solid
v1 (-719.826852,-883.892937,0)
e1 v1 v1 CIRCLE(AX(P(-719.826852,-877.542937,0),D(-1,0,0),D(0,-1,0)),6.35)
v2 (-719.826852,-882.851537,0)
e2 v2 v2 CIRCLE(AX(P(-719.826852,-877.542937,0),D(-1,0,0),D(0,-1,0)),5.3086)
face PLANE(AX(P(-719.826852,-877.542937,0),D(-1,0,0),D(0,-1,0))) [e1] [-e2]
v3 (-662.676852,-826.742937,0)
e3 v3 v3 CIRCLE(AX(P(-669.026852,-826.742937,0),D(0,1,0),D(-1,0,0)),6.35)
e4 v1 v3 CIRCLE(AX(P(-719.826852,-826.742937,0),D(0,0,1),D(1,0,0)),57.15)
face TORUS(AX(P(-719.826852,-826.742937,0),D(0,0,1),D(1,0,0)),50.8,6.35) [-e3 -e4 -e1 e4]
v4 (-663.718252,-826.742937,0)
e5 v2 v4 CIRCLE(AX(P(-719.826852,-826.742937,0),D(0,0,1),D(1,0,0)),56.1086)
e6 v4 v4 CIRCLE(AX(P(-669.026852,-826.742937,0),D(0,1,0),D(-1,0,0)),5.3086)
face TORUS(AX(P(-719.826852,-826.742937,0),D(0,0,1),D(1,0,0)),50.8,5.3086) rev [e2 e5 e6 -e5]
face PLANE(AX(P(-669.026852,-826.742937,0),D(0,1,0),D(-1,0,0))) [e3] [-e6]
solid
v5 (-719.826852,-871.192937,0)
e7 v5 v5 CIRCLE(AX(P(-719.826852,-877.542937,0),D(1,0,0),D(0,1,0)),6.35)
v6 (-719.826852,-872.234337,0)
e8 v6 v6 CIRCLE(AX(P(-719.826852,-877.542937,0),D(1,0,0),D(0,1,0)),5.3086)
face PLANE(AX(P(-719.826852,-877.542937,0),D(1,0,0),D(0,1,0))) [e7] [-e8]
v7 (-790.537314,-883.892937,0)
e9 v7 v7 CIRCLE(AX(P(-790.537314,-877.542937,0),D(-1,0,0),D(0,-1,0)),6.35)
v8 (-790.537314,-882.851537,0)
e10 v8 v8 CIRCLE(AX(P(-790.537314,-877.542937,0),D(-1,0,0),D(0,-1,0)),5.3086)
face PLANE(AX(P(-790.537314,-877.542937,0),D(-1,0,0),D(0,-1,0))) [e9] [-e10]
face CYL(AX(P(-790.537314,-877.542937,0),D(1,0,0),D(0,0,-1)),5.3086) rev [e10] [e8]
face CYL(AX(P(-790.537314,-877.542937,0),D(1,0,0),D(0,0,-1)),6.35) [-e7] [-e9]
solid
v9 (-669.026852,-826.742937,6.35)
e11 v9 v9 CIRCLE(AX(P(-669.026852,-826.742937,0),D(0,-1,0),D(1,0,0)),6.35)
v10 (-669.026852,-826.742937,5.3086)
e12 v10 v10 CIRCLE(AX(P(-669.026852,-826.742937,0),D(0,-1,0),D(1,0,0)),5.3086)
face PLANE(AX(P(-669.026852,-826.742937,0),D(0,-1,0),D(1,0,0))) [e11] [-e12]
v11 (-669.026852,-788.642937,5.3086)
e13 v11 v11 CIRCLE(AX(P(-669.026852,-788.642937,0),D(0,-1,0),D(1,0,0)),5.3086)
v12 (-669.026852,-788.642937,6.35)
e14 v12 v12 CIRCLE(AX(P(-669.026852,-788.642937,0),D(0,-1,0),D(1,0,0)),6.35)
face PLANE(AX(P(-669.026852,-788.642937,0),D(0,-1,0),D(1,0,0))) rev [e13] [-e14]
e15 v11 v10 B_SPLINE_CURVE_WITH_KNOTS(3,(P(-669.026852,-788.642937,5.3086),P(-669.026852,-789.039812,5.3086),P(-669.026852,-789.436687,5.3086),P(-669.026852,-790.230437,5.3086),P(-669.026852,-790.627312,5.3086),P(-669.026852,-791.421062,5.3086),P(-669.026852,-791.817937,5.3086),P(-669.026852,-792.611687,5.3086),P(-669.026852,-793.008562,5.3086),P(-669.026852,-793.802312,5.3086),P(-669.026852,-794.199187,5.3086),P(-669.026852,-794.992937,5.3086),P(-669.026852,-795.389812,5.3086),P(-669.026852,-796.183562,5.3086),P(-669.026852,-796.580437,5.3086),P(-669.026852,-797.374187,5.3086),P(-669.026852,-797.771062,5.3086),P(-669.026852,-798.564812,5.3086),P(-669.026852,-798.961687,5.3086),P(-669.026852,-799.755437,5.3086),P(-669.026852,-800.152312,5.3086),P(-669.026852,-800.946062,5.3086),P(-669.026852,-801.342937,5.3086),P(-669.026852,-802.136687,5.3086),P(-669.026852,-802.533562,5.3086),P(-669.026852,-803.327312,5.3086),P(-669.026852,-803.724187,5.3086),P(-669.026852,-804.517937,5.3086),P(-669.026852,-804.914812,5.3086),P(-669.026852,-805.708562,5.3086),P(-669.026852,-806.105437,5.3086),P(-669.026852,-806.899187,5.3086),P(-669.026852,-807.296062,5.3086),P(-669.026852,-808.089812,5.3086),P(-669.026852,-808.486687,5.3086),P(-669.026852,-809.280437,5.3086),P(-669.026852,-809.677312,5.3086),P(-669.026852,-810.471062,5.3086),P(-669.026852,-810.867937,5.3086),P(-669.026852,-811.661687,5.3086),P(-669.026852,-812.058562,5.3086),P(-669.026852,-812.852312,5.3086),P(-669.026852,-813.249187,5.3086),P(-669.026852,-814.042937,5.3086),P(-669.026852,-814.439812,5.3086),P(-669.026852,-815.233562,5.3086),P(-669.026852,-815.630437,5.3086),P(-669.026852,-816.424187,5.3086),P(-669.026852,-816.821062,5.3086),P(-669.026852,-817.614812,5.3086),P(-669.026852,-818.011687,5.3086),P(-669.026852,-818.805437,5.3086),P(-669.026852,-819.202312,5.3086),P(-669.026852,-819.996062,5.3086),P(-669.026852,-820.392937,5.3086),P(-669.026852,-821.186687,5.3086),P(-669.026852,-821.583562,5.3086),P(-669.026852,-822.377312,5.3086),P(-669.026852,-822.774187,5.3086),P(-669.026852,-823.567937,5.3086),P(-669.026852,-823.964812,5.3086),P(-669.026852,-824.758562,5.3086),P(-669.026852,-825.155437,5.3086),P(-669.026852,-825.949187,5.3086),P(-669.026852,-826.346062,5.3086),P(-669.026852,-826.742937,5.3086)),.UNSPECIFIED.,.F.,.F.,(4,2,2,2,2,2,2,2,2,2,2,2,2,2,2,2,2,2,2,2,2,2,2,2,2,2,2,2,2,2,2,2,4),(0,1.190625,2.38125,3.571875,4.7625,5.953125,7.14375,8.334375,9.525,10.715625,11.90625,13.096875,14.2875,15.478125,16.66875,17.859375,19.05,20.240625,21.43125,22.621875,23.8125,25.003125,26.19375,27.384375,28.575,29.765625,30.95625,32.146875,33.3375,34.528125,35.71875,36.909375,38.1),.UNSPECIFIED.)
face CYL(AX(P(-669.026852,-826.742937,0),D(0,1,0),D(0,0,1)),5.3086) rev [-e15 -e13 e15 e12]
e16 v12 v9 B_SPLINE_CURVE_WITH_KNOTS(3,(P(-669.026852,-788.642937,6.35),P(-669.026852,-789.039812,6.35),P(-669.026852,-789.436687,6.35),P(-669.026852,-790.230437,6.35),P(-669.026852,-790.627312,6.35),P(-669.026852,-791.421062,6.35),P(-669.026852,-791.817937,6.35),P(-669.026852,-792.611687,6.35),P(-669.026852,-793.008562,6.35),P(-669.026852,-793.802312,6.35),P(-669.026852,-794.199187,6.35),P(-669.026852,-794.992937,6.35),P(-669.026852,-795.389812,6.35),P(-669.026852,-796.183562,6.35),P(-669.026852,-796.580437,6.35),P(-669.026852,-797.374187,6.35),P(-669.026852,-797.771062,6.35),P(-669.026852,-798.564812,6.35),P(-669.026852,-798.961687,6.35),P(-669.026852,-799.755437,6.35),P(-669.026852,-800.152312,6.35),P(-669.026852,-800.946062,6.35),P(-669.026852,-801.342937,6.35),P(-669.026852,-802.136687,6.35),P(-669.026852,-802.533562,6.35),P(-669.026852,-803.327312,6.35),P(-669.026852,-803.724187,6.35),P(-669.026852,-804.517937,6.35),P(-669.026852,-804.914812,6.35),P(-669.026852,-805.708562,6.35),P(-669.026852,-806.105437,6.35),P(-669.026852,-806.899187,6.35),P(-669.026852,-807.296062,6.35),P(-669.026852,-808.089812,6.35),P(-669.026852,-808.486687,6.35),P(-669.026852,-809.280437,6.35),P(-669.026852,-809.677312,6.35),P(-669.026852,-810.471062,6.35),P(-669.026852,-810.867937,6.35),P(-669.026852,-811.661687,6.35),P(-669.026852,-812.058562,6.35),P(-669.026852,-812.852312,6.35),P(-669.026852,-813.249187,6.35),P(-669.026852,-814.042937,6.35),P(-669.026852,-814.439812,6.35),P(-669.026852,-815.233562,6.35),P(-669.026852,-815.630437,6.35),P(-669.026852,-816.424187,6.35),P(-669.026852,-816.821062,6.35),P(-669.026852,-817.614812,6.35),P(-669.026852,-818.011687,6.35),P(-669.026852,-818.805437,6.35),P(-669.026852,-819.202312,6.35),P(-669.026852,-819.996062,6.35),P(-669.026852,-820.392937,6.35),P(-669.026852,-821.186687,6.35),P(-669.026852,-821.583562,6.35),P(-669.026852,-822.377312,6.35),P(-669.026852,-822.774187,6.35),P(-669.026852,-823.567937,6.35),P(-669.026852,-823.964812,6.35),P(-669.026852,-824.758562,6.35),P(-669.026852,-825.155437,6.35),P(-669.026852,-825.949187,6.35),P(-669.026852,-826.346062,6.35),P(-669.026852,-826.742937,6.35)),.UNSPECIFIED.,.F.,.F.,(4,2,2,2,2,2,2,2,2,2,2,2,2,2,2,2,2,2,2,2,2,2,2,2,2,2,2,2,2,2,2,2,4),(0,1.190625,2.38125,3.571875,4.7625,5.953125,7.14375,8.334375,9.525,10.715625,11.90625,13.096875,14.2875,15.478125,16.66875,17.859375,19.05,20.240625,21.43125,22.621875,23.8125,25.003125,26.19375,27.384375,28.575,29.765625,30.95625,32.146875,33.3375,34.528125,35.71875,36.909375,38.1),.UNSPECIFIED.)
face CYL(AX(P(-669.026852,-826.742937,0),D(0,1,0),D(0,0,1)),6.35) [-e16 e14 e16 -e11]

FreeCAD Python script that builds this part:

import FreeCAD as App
import Part
import Sketcher
Q = App.Units.Quantity

doc = App.newDocument("Part")
body = doc.addObject("PartDesign::Body", "Body")

# Sketch on XZ plane
sketch1 = body.newObject("Sketcher::SketchObject", "Sketch")
sketch1.AttachmentSupport = (doc.getObject("XZ_Plane"), [""])
sketch1.MapMode = "FlatFace"
sketch1.AttachmentOffset = App.Placement(App.Vector(0, 0, 826.742937), App.Rotation())
sketch1.addGeometry(Part.Circle(App.Vector(-669, 0, 0), App.Vector(0, 0, 1), 6), False)
sketch1.addGeometry(Part.Circle(App.Vector(-669, 0, 0), App.Vector(0, 0, 1), 5), False)
sketch1.addConstraint(Sketcher.Constraint("Coincident", 1, 3, 0, 3))
sketch1.addConstraint(Sketcher.Constraint("PointOnObject", 0, 3, -1))
sketch1.addConstraint(Sketcher.Constraint("Diameter", 0, Q("0.5 in")))
sketch1.addConstraint(Sketcher.Constraint("Diameter", 1, Q("0.418 in")))
sketch1.addConstraint(Sketcher.Constraint("DistanceX", 0, 3, -1, 1, Q("669.026852 mm")))
pad1 = body.newObject("PartDesign::Pad", "Pad")
pad1.Profile = sketch1
pad1.Length = Q("1.5 in")
pad1.Reversed = True
body2 = doc.addObject("PartDesign::Body", "Body001")

# Sketch on XZ plane
sketch2 = body2.newObject("Sketcher::SketchObject", "Sketch001")
sketch2.AttachmentSupport = (doc.getObject("XZ_Plane001"), [""])
sketch2.MapMode = "FlatFace"
sketch2.AttachmentOffset = App.Placement(App.Vector(0, 0, 826.742937), App.Rotation())
sketch2.addGeometry(Part.Circle(App.Vector(-669, 0, 0), App.Vector(0, 0, 1), 6), False)
sketch2.addGeometry(Part.Circle(App.Vector(-669, 0, 0), App.Vector(0, 0, 1), 5), False)
sketch2.addGeometry(Part.LineSegment(App.Vector(-720, 0, 0), App.Vector(-720, -10, 0)), True)  # axis
sketch2.addConstraint(Sketcher.Constraint("Vertical", 2))
sketch2.addConstraint(Sketcher.Constraint("Coincident", 1, 3, 0, 3))
sketch2.addConstraint(Sketcher.Constraint("PointOnObject", 0, 3, -1))
sketch2.addConstraint(Sketcher.Constraint("PointOnObject", 2, 1, -1))
sketch2.addConstraint(Sketcher.Constraint("Diameter", 0, Q("0.5 in")))
sketch2.addConstraint(Sketcher.Constraint("Diameter", 1, Q("0.418 in")))
sketch2.addConstraint(Sketcher.Constraint("DistanceX", 2, 1, 0, 3, Q("2 in")))
sketch2.addConstraint(Sketcher.Constraint("DistanceY", 2, 2, 2, 1, Q("10 mm")))
sketch2.addConstraint(Sketcher.Constraint("DistanceX", 0, 3, -1, 1, Q("669.026852 mm")))
revolution = body2.newObject("PartDesign::Revolution", "Revolution")
revolution.Profile = sketch2
revolution.ReferenceAxis = (sketch2, ["Axis0"])
revolution.Angle = 90
body3 = doc.addObject("PartDesign::Body", "Body002")

# Sketch on YZ plane
sketch3 = body3.newObject("Sketcher::SketchObject", "Sketch002")
sketch3.AttachmentSupport = (doc.getObject("YZ_Plane002"), [""])
sketch3.MapMode = "FlatFace"
sketch3.AttachmentOffset = App.Placement(App.Vector(0, 0, -719.826852), App.Rotation())
sketch3.addGeometry(Part.Circle(App.Vector(-878, 0, 0), App.Vector(0, 0, 1), 6), False)
sketch3.addGeometry(Part.Circle(App.Vector(-878, 0, 0), App.Vector(0, 0, 1), 5), False)
sketch3.addConstraint(Sketcher.Constraint("Coincident", 1, 3, 0, 3))
sketch3.addConstraint(Sketcher.Constraint("PointOnObject", 0, 3, -1))
sketch3.addConstraint(Sketcher.Constraint("Diameter", 0, Q("0.5 in")))
sketch3.addConstraint(Sketcher.Constraint("Diameter", 1, Q("0.418 in")))
sketch3.addConstraint(Sketcher.Constraint("DistanceX", 0, 3, -1, 1, Q("877.542937 mm")))
pad2 = body3.newObject("PartDesign::Pad", "Pad001")
pad2.Profile = sketch3
pad2.Length = 70.710462
pad2.Reversed = True

doc.recompute()
